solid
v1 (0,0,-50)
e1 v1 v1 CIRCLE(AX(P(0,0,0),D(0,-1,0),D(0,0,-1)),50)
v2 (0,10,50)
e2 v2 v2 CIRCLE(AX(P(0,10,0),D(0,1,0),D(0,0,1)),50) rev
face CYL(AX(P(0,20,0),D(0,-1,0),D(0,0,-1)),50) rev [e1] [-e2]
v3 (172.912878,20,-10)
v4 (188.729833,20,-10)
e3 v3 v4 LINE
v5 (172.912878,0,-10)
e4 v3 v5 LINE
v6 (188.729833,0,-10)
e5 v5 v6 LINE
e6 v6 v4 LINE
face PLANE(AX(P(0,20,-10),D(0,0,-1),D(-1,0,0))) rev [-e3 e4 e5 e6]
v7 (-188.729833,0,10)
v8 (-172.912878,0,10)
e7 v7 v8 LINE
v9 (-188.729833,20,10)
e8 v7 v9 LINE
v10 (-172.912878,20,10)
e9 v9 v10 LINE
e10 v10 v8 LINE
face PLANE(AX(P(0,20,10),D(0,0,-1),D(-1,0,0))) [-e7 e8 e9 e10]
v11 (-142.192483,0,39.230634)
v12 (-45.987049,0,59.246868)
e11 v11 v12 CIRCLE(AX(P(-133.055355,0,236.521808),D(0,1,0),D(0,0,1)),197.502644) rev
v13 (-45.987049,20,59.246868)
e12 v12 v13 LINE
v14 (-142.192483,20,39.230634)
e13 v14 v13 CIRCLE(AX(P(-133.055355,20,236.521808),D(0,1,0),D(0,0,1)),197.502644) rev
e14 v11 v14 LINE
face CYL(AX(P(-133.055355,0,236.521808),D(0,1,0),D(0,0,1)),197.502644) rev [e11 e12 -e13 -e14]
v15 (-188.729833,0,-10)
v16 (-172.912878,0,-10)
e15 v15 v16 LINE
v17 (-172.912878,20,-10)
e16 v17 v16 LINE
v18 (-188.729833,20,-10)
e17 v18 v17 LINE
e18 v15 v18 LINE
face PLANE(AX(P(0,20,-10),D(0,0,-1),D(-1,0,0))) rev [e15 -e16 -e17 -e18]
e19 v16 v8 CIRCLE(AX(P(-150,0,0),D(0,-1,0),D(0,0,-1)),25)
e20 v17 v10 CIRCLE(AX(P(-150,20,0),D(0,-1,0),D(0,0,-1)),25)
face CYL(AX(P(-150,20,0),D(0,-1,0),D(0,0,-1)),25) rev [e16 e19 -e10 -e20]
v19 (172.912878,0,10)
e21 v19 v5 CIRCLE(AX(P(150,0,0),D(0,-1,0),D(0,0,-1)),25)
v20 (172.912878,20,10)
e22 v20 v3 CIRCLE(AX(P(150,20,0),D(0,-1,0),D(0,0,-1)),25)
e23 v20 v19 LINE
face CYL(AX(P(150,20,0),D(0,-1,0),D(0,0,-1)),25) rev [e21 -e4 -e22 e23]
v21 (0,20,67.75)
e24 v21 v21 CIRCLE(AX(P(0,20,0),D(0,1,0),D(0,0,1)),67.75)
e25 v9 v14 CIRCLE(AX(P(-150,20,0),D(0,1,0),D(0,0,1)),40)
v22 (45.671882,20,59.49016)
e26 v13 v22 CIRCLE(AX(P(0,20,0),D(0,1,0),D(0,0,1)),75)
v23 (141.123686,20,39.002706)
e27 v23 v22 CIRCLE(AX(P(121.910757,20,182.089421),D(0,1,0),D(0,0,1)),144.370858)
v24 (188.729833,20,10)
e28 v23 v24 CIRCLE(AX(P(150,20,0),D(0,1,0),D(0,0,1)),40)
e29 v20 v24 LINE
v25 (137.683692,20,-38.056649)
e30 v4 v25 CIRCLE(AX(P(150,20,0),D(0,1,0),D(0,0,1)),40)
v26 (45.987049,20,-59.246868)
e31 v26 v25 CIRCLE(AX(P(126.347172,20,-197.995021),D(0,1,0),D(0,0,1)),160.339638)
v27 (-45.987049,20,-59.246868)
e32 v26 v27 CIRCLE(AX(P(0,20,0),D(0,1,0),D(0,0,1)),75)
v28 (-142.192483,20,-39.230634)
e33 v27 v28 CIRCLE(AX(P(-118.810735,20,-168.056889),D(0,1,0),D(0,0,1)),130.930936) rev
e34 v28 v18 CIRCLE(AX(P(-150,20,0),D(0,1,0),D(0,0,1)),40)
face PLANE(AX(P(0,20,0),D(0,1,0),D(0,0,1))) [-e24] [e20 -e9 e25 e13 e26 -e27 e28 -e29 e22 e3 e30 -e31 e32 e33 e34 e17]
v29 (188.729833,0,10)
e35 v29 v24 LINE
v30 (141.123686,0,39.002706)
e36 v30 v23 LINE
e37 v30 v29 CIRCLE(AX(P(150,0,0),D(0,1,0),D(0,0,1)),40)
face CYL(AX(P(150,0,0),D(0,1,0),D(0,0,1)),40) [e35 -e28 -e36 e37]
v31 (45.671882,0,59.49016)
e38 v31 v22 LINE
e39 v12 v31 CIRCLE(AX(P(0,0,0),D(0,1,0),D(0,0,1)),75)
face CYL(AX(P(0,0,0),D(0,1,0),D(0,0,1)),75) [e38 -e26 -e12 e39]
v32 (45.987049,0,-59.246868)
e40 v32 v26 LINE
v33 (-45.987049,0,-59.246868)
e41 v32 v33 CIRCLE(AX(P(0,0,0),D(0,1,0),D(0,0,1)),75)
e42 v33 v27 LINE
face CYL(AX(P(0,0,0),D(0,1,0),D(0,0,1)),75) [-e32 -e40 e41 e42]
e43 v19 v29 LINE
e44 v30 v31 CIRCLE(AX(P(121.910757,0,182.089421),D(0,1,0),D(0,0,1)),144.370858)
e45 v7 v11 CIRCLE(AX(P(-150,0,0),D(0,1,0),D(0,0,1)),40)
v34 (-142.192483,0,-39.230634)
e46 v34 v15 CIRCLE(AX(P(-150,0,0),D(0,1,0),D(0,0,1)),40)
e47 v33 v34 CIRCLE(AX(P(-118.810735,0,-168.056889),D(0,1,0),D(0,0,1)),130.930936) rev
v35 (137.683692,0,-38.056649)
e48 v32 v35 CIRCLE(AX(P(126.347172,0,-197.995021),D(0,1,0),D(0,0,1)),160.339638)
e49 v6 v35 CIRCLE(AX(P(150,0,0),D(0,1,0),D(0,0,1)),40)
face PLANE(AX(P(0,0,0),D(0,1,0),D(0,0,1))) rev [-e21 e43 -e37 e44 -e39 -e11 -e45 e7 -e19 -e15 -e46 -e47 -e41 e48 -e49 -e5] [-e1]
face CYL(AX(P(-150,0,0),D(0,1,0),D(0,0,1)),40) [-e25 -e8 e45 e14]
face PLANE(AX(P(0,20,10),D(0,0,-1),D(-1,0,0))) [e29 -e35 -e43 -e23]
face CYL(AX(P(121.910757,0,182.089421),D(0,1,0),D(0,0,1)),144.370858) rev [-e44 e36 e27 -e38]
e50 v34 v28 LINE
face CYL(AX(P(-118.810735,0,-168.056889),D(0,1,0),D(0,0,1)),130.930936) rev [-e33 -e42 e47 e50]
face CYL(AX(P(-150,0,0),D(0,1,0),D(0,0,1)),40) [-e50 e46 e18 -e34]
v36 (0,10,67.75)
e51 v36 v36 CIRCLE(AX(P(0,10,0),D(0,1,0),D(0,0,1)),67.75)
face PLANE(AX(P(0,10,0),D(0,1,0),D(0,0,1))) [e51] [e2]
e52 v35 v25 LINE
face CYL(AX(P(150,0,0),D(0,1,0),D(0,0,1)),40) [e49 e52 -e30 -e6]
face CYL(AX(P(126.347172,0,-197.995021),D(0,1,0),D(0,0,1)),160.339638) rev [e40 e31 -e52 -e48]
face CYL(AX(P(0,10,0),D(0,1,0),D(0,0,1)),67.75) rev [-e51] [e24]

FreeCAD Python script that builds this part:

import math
import FreeCAD as App
import Part
import Sketcher

doc = App.newDocument("Part")
body = doc.addObject("PartDesign::Body", "Body")

sketch1 = body.newObject("Sketcher::SketchObject", "Sketch")
sketch1.AttachmentSupport = (doc.getObject("XZ_Plane"), [""])
sketch1.MapMode = "FlatFace"
sketch1.addGeometry(Part.LineSegment(App.Vector(-190, -75, 0), App.Vector(-190, 75, 0)), False)
sketch1.addGeometry(Part.LineSegment(App.Vector(-190, 75, 0), App.Vector(190, 75, 0)), False)
sketch1.addGeometry(Part.LineSegment(App.Vector(190, 75, 0), App.Vector(190, -75, 0)), False)
sketch1.addGeometry(Part.LineSegment(App.Vector(190, -75, 0), App.Vector(-190, -75, 0)), False)
sketch1.addConstraint(Sketcher.Constraint("Coincident", 0, 2, 1, 1))
sketch1.addConstraint(Sketcher.Constraint("Coincident", 1, 2, 2, 1))
sketch1.addConstraint(Sketcher.Constraint("Coincident", 2, 2, 3, 1))
sketch1.addConstraint(Sketcher.Constraint("Coincident", 3, 2, 0, 1))
sketch1.addConstraint(Sketcher.Constraint("Vertical", 0))
sketch1.addConstraint(Sketcher.Constraint("Horizontal", 1))
sketch1.addConstraint(Sketcher.Constraint("Vertical", 2))
sketch1.addConstraint(Sketcher.Constraint("Horizontal", 3))
sketch1.addConstraint(Sketcher.Constraint("Symmetric", 0, 2, 2, 2, -1, 1))
sketch1.addConstraint(Sketcher.Constraint("DistanceX", 1, 1, 1, 2, 380.0))
sketch1.addConstraint(Sketcher.Constraint("DistanceY", 0, 1, 0, 2, 150.0))
pad1 = body.newObject("PartDesign::Pad", "Pad")
pad1.Profile = sketch1
pad1.Length = 20
pad1.Reversed = True

sketch2 = body.newObject("Sketcher::SketchObject", "Sketch001")
sketch2.AttachmentSupport = (doc.getObject("XZ_Plane"), [""])
sketch2.MapMode = "FlatFace"
sketch2.addGeometry(Part.LineSegment(App.Vector(-190, 10, 0), App.Vector(-190, -10, 0)), False)
sketch2.addGeometry(Part.LineSegment(App.Vector(-190, -10, 0), App.Vector(-172.912878, -10, 0)), False)
sketch2.addGeometry(Part.ArcOfCircle(Part.Circle(App.Vector(-150, 0, 0), App.Vector(0, 0, 1), 25), math.radians(-156.421822), math.radians(156.421822)), False)
sketch2.addGeometry(Part.LineSegment(App.Vector(-172.912878, 10, 0), App.Vector(-190, 10, 0)), False)
sketch2.addGeometry(Part.Circle(App.Vector(0, 0, 0), App.Vector(0, 0, 1), 50), False)
sketch2.addGeometry(Part.ArcOfCircle(Part.Circle(App.Vector(150, 0, 0), App.Vector(0, 0, 1), 25), math.radians(23.578178), math.radians(180)), False)
sketch2.addGeometry(Part.ArcOfCircle(Part.Circle(App.Vector(150, 0, 0), App.Vector(0, 0, 1), 25), math.radians(180), math.radians(336.421822)), False)
sketch2.addGeometry(Part.LineSegment(App.Vector(172.912878, -10, 0), App.Vector(226.086047, -10, 0)), False)
sketch2.addGeometry(Part.LineSegment(App.Vector(226.086047, -10, 0), App.Vector(226.086047, 10, 0)), False)
sketch2.addGeometry(Part.LineSegment(App.Vector(226.086047, 10, 0), App.Vector(172.912878, 10, 0)), False)
sketch2.addConstraint(Sketcher.Constraint("Coincident", 0, 2, 1, 1))
sketch2.addConstraint(Sketcher.Constraint("Coincident", 1, 2, 2, 1))
sketch2.addConstraint(Sketcher.Constraint("Coincident", 2, 2, 3, 1))
sketch2.addConstraint(Sketcher.Constraint("Coincident", 3, 2, 0, 1))
sketch2.addConstraint(Sketcher.Constraint("Tangent", 5, 2, 6, 1))
sketch2.addConstraint(Sketcher.Constraint("Coincident", 6, 2, 7, 1))
sketch2.addConstraint(Sketcher.Constraint("Coincident", 7, 2, 8, 1))
sketch2.addConstraint(Sketcher.Constraint("Coincident", 8, 2, 9, 1))
sketch2.addConstraint(Sketcher.Constraint("Coincident", 9, 2, 5, 1))
sketch2.addConstraint(Sketcher.Constraint("Vertical", 0))
sketch2.addConstraint(Sketcher.Constraint("Horizontal", 1))
sketch2.addConstraint(Sketcher.Constraint("Horizontal", 3))
sketch2.addConstraint(Sketcher.Constraint("Horizontal", 7))
sketch2.addConstraint(Sketcher.Constraint("Vertical", 8))
sketch2.addConstraint(Sketcher.Constraint("Horizontal", 9))
sketch2.addConstraint(Sketcher.Constraint("Coincident", 4, 3, -1, 1))
sketch2.addConstraint(Sketcher.Constraint("Equal", 2, 5))
sketch2.addConstraint(Sketcher.Constraint("Equal", 5, 6))
sketch2.addConstraint(Sketcher.Constraint("Symmetric", 2, 3, 5, 3, -1, 1))
sketch2.addConstraint(Sketcher.Constraint("Symmetric", 1, 2, 6, 2, -2))
sketch2.addConstraint(Sketcher.Constraint("PointOnObject", 5, 2, -1))
sketch2.addConstraint(Sketcher.Constraint("Horizontal", 3, 2, 8, 2))
sketch2.addConstraint(Sketcher.Constraint("Vertical", 1, 2, 2, 2))
sketch2.addConstraint(Sketcher.Constraint("Diameter", 4, 100.0))
sketch2.addConstraint(Sketcher.Constraint("Radius", 2, 25.0))
sketch2.addConstraint(Sketcher.Constraint("DistanceY", 0, 2, 0, 1, 20.0))
sketch2.addConstraint(Sketcher.Constraint("DistanceX", 2, 3, -1, 1, 150.0))
sketch2.addConstraint(Sketcher.Constraint("DistanceX", 0, 2, -1, 1, 190.0))
sketch2.addConstraint(Sketcher.Constraint("DistanceX", 7, 1, 7, 2, 53.173169))
pocket1 = body.newObject("PartDesign::Pocket", "Pocket")
pocket1.Profile = sketch2
pocket1.Type = "ThroughAll"

sketch3 = body.newObject("Sketcher::SketchObject", "Sketch002")
sketch3.AttachmentSupport = (doc.getObject("XZ_Plane"), [""])
sketch3.MapMode = "FlatFace"
sketch3.AttachmentOffset = App.Placement(App.Vector(0, 0, -20), App.Rotation())
sketch3.addGeometry(Part.Circle(App.Vector(0, 0, 0), App.Vector(0, 0, 1), 67.75), False)
sketch3.addConstraint(Sketcher.Constraint("Coincident", 0, 3, -1, 1))
sketch3.addConstraint(Sketcher.Constraint("Diameter", 0, 135.5))
pocket2 = body.newObject("PartDesign::Pocket", "Pocket001")
pocket2.Profile = sketch3
pocket2.Length = 10
pocket2.Reversed = True

sketch4 = body.newObject("Sketcher::SketchObject", "Sketch003")
sketch4.AttachmentSupport = (doc.getObject("XZ_Plane"), [""])
sketch4.MapMode = "FlatFace"
sketch4.AttachmentOffset = App.Placement(App.Vector(0, 0, -20), App.Rotation())
sketch4.addGeometry(Part.ArcOfCircle(Part.Circle(App.Vector(-133.055355, 236.521808, 0), App.Vector(0, 0, 1), 197.502644), math.radians(-92.651639), math.radians(-63.84211)), False)
sketch4.addGeometry(Part.ArcOfCircle(Part.Circle(App.Vector(-150, 0, 0), App.Vector(0, 0, 1), 40), math.radians(78.744298), math.radians(165.522488)), False)
sketch4.addGeometry(Part.LineSegment(App.Vector(-188.729833, 10, 0), App.Vector(-190, 10, 0)), False)
sketch4.addGeometry(Part.LineSegment(App.Vector(-190, 10, 0), App.Vector(-190, 75, 0)), False)
sketch4.addGeometry(Part.LineSegment(App.Vector(-190, 75, 0), App.Vector(-0.000001, 75, 0)), False)
sketch4.addGeometry(Part.ArcOfCircle(Part.Circle(App.Vector(0, 0, 0), App.Vector(0, 0, 1), 75), math.radians(90.000001), math.radians(127.818391)), False)
sketch4.addGeometry(Part.ArcOfCircle(Part.Circle(App.Vector(-150, 0, 0), App.Vector(0, 0, 1), 40), math.radians(-165.522488), math.radians(-78.744298)), False)
sketch4.addGeometry(Part.ArcOfCircle(Part.Circle(App.Vector(-118.810735, -168.056889, 0), App.Vector(0, 0, 1), 130.930936), math.radians(56.206645), math.radians(100.287105)), False)
sketch4.addGeometry(Part.ArcOfCircle(Part.Circle(App.Vector(0, 0, 0), App.Vector(0, 0, 1), 75), math.radians(-127.818391), math.radians(-90)), False)
sketch4.addGeometry(Part.LineSegment(App.Vector(0, -75, 0), App.Vector(-190, -75, 0)), False)
sketch4.addGeometry(Part.LineSegment(App.Vector(-190, -75, 0), App.Vector(-190, -10, 0)), False)
sketch4.addGeometry(Part.LineSegment(App.Vector(-190, -10, 0), App.Vector(-188.729833, -10, 0)), False)
sketch4.addGeometry(Part.LineSegment(App.Vector(190, -75, 0), App.Vector(0, -75, 0)), False)
sketch4.addGeometry(Part.ArcOfCircle(Part.Circle(App.Vector(0, 0, 0), App.Vector(0, 0, 1), 75), math.radians(-90), math.radians(-52.181609)), False)
sketch4.addGeometry(Part.ArcOfCircle(Part.Circle(App.Vector(126.347172, -197.995021, 0), App.Vector(0, 0, 1), 160.339638), math.radians(85.945624), math.radians(120.078555)), False)
sketch4.addGeometry(Part.ArcOfCircle(Part.Circle(App.Vector(150, 0, 0), App.Vector(0, 0, 1), 40), math.radians(-107.933184), math.radians(-14.477512)), False)
sketch4.addGeometry(Part.LineSegment(App.Vector(188.729833, -10, 0), App.Vector(190, -10, 0)), False)
sketch4.addGeometry(Part.LineSegment(App.Vector(190, -10, 0), App.Vector(190, -75, 0)), False)
sketch4.addGeometry(Part.ArcOfCircle(Part.Circle(App.Vector(0, 0, 0), App.Vector(0, 0, 1), 75), math.radians(52.485771), math.radians(90.000001)), False)
sketch4.addGeometry(Part.LineSegment(App.Vector(-0.000001, 75, 0), App.Vector(190, 75, 0)), False)
sketch4.addGeometry(Part.LineSegment(App.Vector(190, 75, 0), App.Vector(190, 10, 0)), False)
sketch4.addGeometry(Part.LineSegment(App.Vector(190, 10, 0), App.Vector(188.729833, 10, 0)), False)
sketch4.addGeometry(Part.ArcOfCircle(Part.Circle(App.Vector(150, 0, 0), App.Vector(0, 0, 1), 40), math.radians(14.477512), math.radians(102.821115)), False)
sketch4.addGeometry(Part.ArcOfCircle(Part.Circle(App.Vector(121.910757, 182.089421, 0), App.Vector(0, 0, 1), 144.370858), math.radians(-121.875592), math.radians(-82.352368)), False)
sketch4.addConstraint(Sketcher.Constraint("Coincident", 0, 1, 1, 1))
sketch4.addConstraint(Sketcher.Constraint("Coincident", 1, 2, 2, 1))
sketch4.addConstraint(Sketcher.Constraint("Coincident", 2, 2, 3, 1))
sketch4.addConstraint(Sketcher.Constraint("Coincident", 3, 2, 4, 1))
sketch4.addConstraint(Sketcher.Constraint("Tangent", 4, 2, 5, 1))
sketch4.addConstraint(Sketcher.Constraint("Coincident", 5, 2, 0, 2))
sketch4.addConstraint(Sketcher.Constraint("Coincident", 6, 2, 7, 2))
sketch4.addConstraint(Sketcher.Constraint("Coincident", 7, 1, 8, 1))
sketch4.addConstraint(Sketcher.Constraint("Tangent", 8, 2, 9, 1))
sketch4.addConstraint(Sketcher.Constraint("Coincident", 9, 2, 10, 1))
sketch4.addConstraint(Sketcher.Constraint("Coincident", 10, 2, 11, 1))
sketch4.addConstraint(Sketcher.Constraint("Coincident", 11, 2, 6, 1))
sketch4.addConstraint(Sketcher.Constraint("Tangent", 12, 2, 13, 1))
sketch4.addConstraint(Sketcher.Constraint("Coincident", 13, 2, 14, 2))
sketch4.addConstraint(Sketcher.Constraint("Coincident", 14, 1, 15, 1))
sketch4.addConstraint(Sketcher.Constraint("Coincident", 15, 2, 16, 1))
sketch4.addConstraint(Sketcher.Constraint("Coincident", 16, 2, 17, 1))
sketch4.addConstraint(Sketcher.Constraint("Coincident", 17, 2, 12, 1))
sketch4.addConstraint(Sketcher.Constraint("Tangent", 18, 2, 19, 1))
sketch4.addConstraint(Sketcher.Constraint("Coincident", 19, 2, 20, 1))
sketch4.addConstraint(Sketcher.Constraint("Coincident", 20, 2, 21, 1))
sketch4.addConstraint(Sketcher.Constraint("Coincident", 21, 2, 22, 1))
sketch4.addConstraint(Sketcher.Constraint("Coincident", 22, 2, 23, 2))
sketch4.addConstraint(Sketcher.Constraint("Coincident", 23, 1, 18, 1))
sketch4.addConstraint(Sketcher.Constraint("Horizontal", 2))
sketch4.addConstraint(Sketcher.Constraint("Vertical", 3))
sketch4.addConstraint(Sketcher.Constraint("Horizontal", 4))
sketch4.addConstraint(Sketcher.Constraint("Horizontal", 9))
sketch4.addConstraint(Sketcher.Constraint("Vertical", 10))
sketch4.addConstraint(Sketcher.Constraint("Horizontal", 11))
sketch4.addConstraint(Sketcher.Constraint("Horizontal", 12))
sketch4.addConstraint(Sketcher.Constraint("Horizontal", 16))
sketch4.addConstraint(Sketcher.Constraint("Vertical", 17))
sketch4.addConstraint(Sketcher.Constraint("Horizontal", 19))
sketch4.addConstraint(Sketcher.Constraint("Vertical", 20))
sketch4.addConstraint(Sketcher.Constraint("Horizontal", 21))
sketch4.addConstraint(Sketcher.Constraint("Coincident", 5, 3, -1, 1))
sketch4.addConstraint(Sketcher.Constraint("Coincident", 8, 3, -1, 1))
sketch4.addConstraint(Sketcher.Constraint("Coincident", 13, 3, -1, 1))
sketch4.addConstraint(Sketcher.Constraint("Coincident", 18, 3, -1, 1))
sketch4.addConstraint(Sketcher.Constraint("Coincident", 6, 3, 1, 3))
sketch4.addConstraint(Sketcher.Constraint("Coincident", 22, 3, 15, 3))
sketch4.addConstraint(Sketcher.Constraint("Equal", 1, 6))
sketch4.addConstraint(Sketcher.Constraint("Equal", 5, 8))
sketch4.addConstraint(Sketcher.Constraint("Equal", 8, 13))
sketch4.addConstraint(Sketcher.Constraint("Equal", 6, 15))
sketch4.addConstraint(Sketcher.Constraint("Equal", 13, 18))
sketch4.addConstraint(Sketcher.Constraint("Equal", 15, 22))
sketch4.addConstraint(Sketcher.Constraint("Symmetric", 1, 3, 15, 3, -1, 1))
sketch4.addConstraint(Sketcher.Constraint("Symmetric", 2, 2, 16, 2, -1, 1))
sketch4.addConstraint(Sketcher.Constraint("Symmetric", 10, 2, 20, 2, -1, 1))
sketch4.addConstraint(Sketcher.Constraint("Symmetric", 11, 2, 15, 2, -2))
sketch4.addConstraint(Sketcher.Constraint("Horizontal", 7, 1, 13, 2))
sketch4.addConstraint(Sketcher.Constraint("Vertical", 0, 1, 6, 2))
sketch4.addConstraint(Sketcher.Constraint("Vertical", 5, 2, 7, 1))
sketch4.addConstraint(Sketcher.Constraint("Vertical", 3, 2, 9, 2))
sketch4.addConstraint(Sketcher.Constraint("Radius", 1, 40.0))
sketch4.addConstraint(Sketcher.Constraint("Radius", 5, 75.0))
sketch4.addConstraint(Sketcher.Constraint("DistanceX", 4, 1, 4, 2, 189.999999))
sketch4.addConstraint(Sketcher.Constraint("DistanceY", 3, 1, 3, 2, 65.0))
sketch4.addConstraint(Sketcher.Constraint("DistanceX", 1, 3, -1, 1, 150.0))
sketch4.addConstraint(Sketcher.Constraint("Radius", 0, 197.502644))
sketch4.addConstraint(Sketcher.Constraint("Radius", 7, 130.930936))
sketch4.addConstraint(Sketcher.Constraint("Radius", 14, 160.339638))
sketch4.addConstraint(Sketcher.Constraint("Radius", 23, 144.370858))
sketch4.addConstraint(Sketcher.Constraint("DistanceY", -1, 1, 0, 3, 236.521808))
sketch4.addConstraint(Sketcher.Constraint("DistanceY", 7, 3, -1, 1, 168.056889))
sketch4.addConstraint(Sketcher.Constraint("DistanceY", 14, 3, -1, 1, 197.995021))
sketch4.addConstraint(Sketcher.Constraint("DistanceY", -1, 1, 23, 3, 182.089421))
sketch4.addConstraint(Sketcher.Constraint("DistanceY", -1, 1, 23, 1, 59.49016))
pocket3 = body.newObject("PartDesign::Pocket", "Pocket002")
pocket3.Profile = sketch4
pocket3.Type = "ThroughAll"
pocket3.Reversed = True

doc.recompute()
